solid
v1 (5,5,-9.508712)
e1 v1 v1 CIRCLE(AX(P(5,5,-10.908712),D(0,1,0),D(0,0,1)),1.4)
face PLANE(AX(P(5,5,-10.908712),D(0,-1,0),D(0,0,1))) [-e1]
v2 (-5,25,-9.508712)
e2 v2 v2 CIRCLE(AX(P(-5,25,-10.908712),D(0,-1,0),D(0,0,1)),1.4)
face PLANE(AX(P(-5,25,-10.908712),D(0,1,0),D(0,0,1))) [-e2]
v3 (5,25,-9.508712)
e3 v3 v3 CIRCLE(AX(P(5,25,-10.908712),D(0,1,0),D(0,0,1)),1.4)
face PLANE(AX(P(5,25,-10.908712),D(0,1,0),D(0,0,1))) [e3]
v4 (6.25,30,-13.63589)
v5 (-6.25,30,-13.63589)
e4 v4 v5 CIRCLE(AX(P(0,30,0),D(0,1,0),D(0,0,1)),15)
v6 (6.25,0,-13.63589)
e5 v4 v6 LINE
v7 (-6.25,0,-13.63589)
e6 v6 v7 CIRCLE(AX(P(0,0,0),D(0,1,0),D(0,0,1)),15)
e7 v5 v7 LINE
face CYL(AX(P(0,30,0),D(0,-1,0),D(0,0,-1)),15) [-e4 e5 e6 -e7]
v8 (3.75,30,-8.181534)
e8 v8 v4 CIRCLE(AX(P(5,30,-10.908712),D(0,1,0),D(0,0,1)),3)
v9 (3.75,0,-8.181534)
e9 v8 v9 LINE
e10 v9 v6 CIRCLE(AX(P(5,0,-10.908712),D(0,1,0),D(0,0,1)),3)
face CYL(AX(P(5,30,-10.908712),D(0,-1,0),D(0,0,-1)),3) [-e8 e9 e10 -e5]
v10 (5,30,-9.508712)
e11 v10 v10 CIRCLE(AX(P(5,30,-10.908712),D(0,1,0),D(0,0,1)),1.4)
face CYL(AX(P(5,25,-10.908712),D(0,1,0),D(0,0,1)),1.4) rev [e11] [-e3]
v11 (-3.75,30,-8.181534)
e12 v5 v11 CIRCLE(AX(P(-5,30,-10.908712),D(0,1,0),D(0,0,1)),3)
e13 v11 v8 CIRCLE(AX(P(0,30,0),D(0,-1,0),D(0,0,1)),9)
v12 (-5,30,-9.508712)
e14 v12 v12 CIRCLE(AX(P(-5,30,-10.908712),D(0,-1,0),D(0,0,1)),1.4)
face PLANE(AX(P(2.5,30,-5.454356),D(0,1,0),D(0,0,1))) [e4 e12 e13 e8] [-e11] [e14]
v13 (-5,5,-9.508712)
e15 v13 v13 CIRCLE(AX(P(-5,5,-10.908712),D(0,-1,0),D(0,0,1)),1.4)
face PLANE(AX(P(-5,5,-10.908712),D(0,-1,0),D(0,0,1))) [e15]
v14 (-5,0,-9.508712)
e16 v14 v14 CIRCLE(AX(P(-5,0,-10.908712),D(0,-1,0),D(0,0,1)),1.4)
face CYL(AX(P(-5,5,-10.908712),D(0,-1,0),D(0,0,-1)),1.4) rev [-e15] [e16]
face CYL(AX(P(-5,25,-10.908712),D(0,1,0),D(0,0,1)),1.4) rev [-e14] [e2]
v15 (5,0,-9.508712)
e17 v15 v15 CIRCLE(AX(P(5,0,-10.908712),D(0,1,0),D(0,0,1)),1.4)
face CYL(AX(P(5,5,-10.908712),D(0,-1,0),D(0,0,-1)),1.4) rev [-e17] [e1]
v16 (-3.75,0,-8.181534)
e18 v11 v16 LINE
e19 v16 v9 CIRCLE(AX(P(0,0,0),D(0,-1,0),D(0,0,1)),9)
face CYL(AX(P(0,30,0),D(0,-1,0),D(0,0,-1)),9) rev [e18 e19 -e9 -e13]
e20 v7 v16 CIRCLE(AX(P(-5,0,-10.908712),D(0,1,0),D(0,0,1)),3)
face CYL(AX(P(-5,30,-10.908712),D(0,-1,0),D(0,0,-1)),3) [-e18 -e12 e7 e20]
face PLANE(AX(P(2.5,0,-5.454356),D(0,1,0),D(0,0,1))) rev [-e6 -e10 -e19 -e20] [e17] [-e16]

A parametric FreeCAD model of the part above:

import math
import FreeCAD as App
import Part
import Sketcher

doc = App.newDocument("Part")
body = doc.addObject("PartDesign::Body", "Body")

# Sketch on XZ plane
sketch1 = body.newObject("Sketcher::SketchObject", "Sketch")
sketch1.AttachmentSupport = (doc.getObject("XZ_Plane"), [""])
sketch1.MapMode = "FlatFace"
sketch1.addGeometry([
    Part.ArcOfCircle(Part.Circle(App.Vector(0, 0, 0), App.Vector(0, 0, 1), 15), math.radians(-115), math.radians(-65)),
    Part.ArcOfCircle(Part.Circle(App.Vector(-5, -10.9, 0), App.Vector(0, 0, 1), 3), math.radians(65), math.radians(245)),
    Part.ArcOfCircle(Part.Circle(App.Vector(0, 0, 0), App.Vector(0, 0, 1), 9), math.radians(-115), math.radians(-65)),
    Part.ArcOfCircle(Part.Circle(App.Vector(5, -10.9, 0), App.Vector(0, 0, 1), 3), math.radians(-65), math.radians(115)),
], False)
sketch1.addConstraint([
    Sketcher.Constraint("Tangent", 0, 1, 1, 2),
    Sketcher.Constraint("Tangent", 1, 1, 2, 1),
    Sketcher.Constraint("Tangent", 2, 2, 3, 2),
    Sketcher.Constraint("Tangent", 3, 1, 0, 2),
    Sketcher.Constraint("Coincident", 0, 3, -1, 1),
    Sketcher.Constraint("Coincident", 2, 3, -1, 1),
    Sketcher.Constraint("Horizontal", 1, 3, 3, 3),
    Sketcher.Constraint("Radius", 0, 15.0),
    Sketcher.Constraint("Radius", 1, 3.0),
    Sketcher.Constraint("DistanceX", 1, 3, -1, 1, 5.0),
])
pad1 = body.newObject("PartDesign::Pad", "Pad")
pad1.Profile = sketch1
pad1.Length = 30
pad1.Reversed = True

# Sketch on XZ plane
sketch2 = body.newObject("Sketcher::SketchObject", "Sketch001")
sketch2.AttachmentSupport = (doc.getObject("XZ_Plane"), [""])
sketch2.MapMode = "FlatFace"
sketch2.AttachmentOffset = App.Placement(App.Vector(0, 0, -30), App.Rotation())
sketch2.addGeometry(Part.Circle(App.Vector(5, -10.9, 0), App.Vector(0, 0, 1), 1.4), False)
sketch2.addConstraint([
    Sketcher.Constraint("Diameter", 0, 2.8),
    Sketcher.Constraint("DistanceX", -1, 1, 0, 3, 5.0),
    Sketcher.Constraint("DistanceY", 0, 3, -1, 1, 10.908712),
])
pocket1 = body.newObject("PartDesign::Pocket", "Pocket")
pocket1.Profile = sketch2
pocket1.Length = 5
pocket1.Reversed = True
doc.recompute()

mirrored = body.newObject("PartDesign::Mirrored", "Mirrored")
mirrored.Originals = [pocket1]
mirrored.MirrorPlane = (doc.getObject("YZ_Plane"), [""])
body.Tip = mirrored
doc.recompute()

datumplane = body.newObject("PartDesign::Plane", "DatumPlane")
datumplane.AttachmentSupport = (doc.getObject("XZ_Plane"), [""])
datumplane.MapMode = "FlatFace"
datumplane.AttachmentOffset = App.Placement(App.Vector(0, 0, -15), App.Rotation())
mirrored2 = body.newObject("PartDesign::Mirrored", "Mirrored001")
mirrored2.Originals = [pocket1]
mirrored2.MirrorPlane = (datumplane, [""])
body.Tip = mirrored2

# Sketch on XZ plane
sketch3 = body.newObject("Sketcher::SketchObject", "Sketch002")
sketch3.AttachmentSupport = (doc.getObject("XZ_Plane"), [""])
sketch3.MapMode = "FlatFace"
sketch3.addGeometry(Part.Circle(App.Vector(-5, -10.9, 0), App.Vector(0, 0, 1), 1.4), False)
sketch3.addConstraint([
    Sketcher.Constraint("Diameter", 0, 2.8),
    Sketcher.Constraint("DistanceX", 0, 3, -1, 1, 5.0),
    Sketcher.Constraint("DistanceY", 0, 3, -1, 1, 10.908712),
])
pocket2 = body.newObject("PartDesign::Pocket", "Pocket001")
pocket2.Profile = sketch3
pocket2.Length = 5

doc.recompute()
